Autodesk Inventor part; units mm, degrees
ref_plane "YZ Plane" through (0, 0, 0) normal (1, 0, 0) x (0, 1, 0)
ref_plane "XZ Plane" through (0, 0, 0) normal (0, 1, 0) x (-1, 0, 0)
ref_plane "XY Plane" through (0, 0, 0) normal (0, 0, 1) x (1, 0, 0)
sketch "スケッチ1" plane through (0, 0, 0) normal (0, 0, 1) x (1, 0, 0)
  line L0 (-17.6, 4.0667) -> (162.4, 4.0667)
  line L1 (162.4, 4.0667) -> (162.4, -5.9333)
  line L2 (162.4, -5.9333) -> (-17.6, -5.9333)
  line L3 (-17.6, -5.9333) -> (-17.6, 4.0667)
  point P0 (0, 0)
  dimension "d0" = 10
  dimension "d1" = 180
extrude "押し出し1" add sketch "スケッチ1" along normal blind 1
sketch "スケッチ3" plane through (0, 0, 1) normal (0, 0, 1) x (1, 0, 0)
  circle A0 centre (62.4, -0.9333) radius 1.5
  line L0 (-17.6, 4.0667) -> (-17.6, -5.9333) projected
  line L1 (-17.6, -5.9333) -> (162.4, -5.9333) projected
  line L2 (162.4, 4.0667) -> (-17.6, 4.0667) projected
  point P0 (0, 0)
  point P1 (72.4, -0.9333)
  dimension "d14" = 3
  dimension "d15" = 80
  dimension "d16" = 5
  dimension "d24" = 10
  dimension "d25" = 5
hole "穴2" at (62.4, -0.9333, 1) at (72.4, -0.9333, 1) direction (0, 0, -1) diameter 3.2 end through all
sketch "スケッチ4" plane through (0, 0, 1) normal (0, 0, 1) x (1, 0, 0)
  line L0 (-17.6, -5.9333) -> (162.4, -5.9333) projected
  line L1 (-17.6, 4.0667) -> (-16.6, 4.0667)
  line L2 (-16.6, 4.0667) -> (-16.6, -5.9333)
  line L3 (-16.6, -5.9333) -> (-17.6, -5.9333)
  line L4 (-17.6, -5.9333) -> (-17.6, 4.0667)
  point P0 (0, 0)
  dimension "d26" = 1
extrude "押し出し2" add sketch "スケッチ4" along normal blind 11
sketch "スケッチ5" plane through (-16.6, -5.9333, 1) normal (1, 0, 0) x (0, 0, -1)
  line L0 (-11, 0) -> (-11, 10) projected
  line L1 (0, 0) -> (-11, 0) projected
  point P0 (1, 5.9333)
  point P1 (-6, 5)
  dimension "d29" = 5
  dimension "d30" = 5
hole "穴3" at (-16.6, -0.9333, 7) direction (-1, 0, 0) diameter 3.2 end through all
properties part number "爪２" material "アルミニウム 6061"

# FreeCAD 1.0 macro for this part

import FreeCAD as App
import Part
import Sketcher

V = App.Vector

doc = App.newDocument("Part")
body = doc.addObject("PartDesign::Body", "Body")

# Sketch on XY plane
sketch1 = body.newObject("Sketcher::SketchObject", "Sketch")
sketch1.AttachmentSupport = (doc.getObject("XY_Plane"), [""])
sketch1.MapMode = "FlatFace"
sketch1.addGeometry([
    Part.LineSegment(V(162, 4, 0), V(-18, 4, 0)),
    Part.LineSegment(V(-18, 4, 0), V(-18, -6, 0)),
    Part.LineSegment(V(-18, -6, 0), V(162, -6, 0)),
    Part.LineSegment(V(162, -6, 0), V(162, 4, 0)),
], False)
sketch1.addConstraint([
    Sketcher.Constraint("Coincident", 0, 2, 1, 1),
    Sketcher.Constraint("Coincident", 1, 2, 2, 1),
    Sketcher.Constraint("Coincident", 2, 2, 3, 1),
    Sketcher.Constraint("Coincident", 3, 2, 0, 1),
    Sketcher.Constraint("Horizontal", 0),
    Sketcher.Constraint("Vertical", 1),
    Sketcher.Constraint("Horizontal", 2),
    Sketcher.Constraint("Vertical", 3),
    Sketcher.Constraint("DistanceX", 0, 2, 0, 1, 180.0),
    Sketcher.Constraint("DistanceY", 1, 2, 1, 1, 10.0),
    Sketcher.Constraint("DistanceX", 0, 2, -1, 1, 17.6),
    Sketcher.Constraint("DistanceY", -1, 1, 0, 2, 4.0667),
])
pad1 = body.newObject("PartDesign::Pad", "Pad")
pad1.Profile = sketch1
pad1.Length = 1

# Sketch on XY plane
sketch2 = body.newObject("Sketcher::SketchObject", "Sketch001")
sketch2.AttachmentSupport = (doc.getObject("XY_Plane"), [""])
sketch2.MapMode = "FlatFace"
sketch2.AttachmentOffset = App.Placement(V(0, 0, 1), App.Rotation())
sketch2.addGeometry([
    Part.Circle(V(62.4, -0.9, 0), V(0, 0, 1), 1.6),
    Part.Circle(V(72.4, -0.9, 0), V(0, 0, 1), 1.6),
], False)
sketch2.addConstraint([
    Sketcher.Constraint("Equal", 0, 1),
    Sketcher.Constraint("Horizontal", 0, 3, 1, 3),
    Sketcher.Constraint("Diameter", 0, 3.2),
    Sketcher.Constraint("DistanceX", 0, 3, 1, 3, 10.0),
    Sketcher.Constraint("DistanceX", -1, 1, 0, 3, 62.4),
    Sketcher.Constraint("DistanceY", 0, 3, -1, 1, 0.9333),
])
doc.recompute()
hole = body.newObject("PartDesign::Hole", "Hole")
hole.Profile = sketch2
hole.ThreadType = "None"
hole.Diameter = 3.2
hole.DepthType = "ThroughAll"

# Sketch on XY plane
sketch3 = body.newObject("Sketcher::SketchObject", "Sketch002")
sketch3.AttachmentSupport = (doc.getObject("XY_Plane"), [""])
sketch3.MapMode = "FlatFace"
sketch3.AttachmentOffset = App.Placement(V(0, 0, 1), App.Rotation())
sketch3.addGeometry([
    Part.LineSegment(V(-17.6, 4.1, 0), V(-17.6, -5.9, 0)),
    Part.LineSegment(V(-17.6, -5.9, 0), V(-16.6, -5.9, 0)),
    Part.LineSegment(V(-16.6, -5.9, 0), V(-16.6, 4.1, 0)),
    Part.LineSegment(V(-16.6, 4.1, 0), V(-17.6, 4.1, 0)),
], False)
sketch3.addConstraint([
    Sketcher.Constraint("Coincident", 0, 2, 1, 1),
    Sketcher.Constraint("Coincident", 1, 2, 2, 1),
    Sketcher.Constraint("Coincident", 2, 2, 3, 1),
    Sketcher.Constraint("Coincident", 3, 2, 0, 1),
    Sketcher.Constraint("Vertical", 0),
    Sketcher.Constraint("Horizontal", 1),
    Sketcher.Constraint("Vertical", 2),
    Sketcher.Constraint("Horizontal", 3),
    Sketcher.Constraint("DistanceX", 1, 1, 1, 2, 1.0),
    Sketcher.Constraint("DistanceY", 0, 2, 0, 1, 10.0),
    Sketcher.Constraint("DistanceX", 0, 2, -1, 1, 17.6),
    Sketcher.Constraint("DistanceY", 0, 2, -1, 1, 5.9333),
])
pad2 = body.newObject("PartDesign::Pad", "Pad001")
pad2.Profile = sketch3
pad2.Length = 11

# Sketch on YZ plane
sketch4 = body.newObject("Sketcher::SketchObject", "Sketch003")
sketch4.AttachmentSupport = (doc.getObject("YZ_Plane"), [""])
sketch4.MapMode = "FlatFace"
sketch4.AttachmentOffset = App.Placement(V(0, 0, -16.6), App.Rotation())
sketch4.addGeometry(Part.Circle(V(-0.9, 7, 0), V(0, 0, 1), 1.6), False)
sketch4.addConstraint([
    Sketcher.Constraint("Diameter", 0, 3.2),
    Sketcher.Constraint("DistanceY", -1, 1, 0, 3, 7.0),
    Sketcher.Constraint("DistanceX", 0, 3, -1, 1, 0.9333),
])
doc.recompute()
hole2 = body.newObject("PartDesign::Hole", "Hole001")
hole2.Profile = sketch4
hole2.ThreadType = "None"
hole2.Diameter = 3.2
hole2.DepthType = "ThroughAll"

doc.recompute()
